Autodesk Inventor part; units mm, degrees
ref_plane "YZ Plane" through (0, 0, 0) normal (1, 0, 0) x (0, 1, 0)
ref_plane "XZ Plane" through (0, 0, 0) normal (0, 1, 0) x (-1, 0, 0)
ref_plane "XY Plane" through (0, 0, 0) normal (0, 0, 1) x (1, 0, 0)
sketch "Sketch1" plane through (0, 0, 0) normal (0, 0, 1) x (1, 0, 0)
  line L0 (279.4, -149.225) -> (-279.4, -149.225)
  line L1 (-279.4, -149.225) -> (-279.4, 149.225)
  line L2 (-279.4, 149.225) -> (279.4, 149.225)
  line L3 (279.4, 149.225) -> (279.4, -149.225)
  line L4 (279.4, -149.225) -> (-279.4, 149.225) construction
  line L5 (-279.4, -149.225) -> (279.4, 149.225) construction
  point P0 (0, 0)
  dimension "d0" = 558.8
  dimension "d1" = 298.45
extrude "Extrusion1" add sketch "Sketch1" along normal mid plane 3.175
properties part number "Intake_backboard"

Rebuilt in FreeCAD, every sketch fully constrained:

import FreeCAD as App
import Part
import Sketcher
Q = App.Units.Quantity

doc = App.newDocument("Part")
body = doc.addObject("PartDesign::Body", "Body")

sketch1 = body.newObject("Sketcher::SketchObject", "Sketch")
sketch1.AttachmentSupport = (doc.getObject("XY_Plane"), [""])
sketch1.MapMode = "FlatFace"
sketch1.addGeometry(Part.LineSegment(App.Vector(-279.4, -149.225, 0), App.Vector(279.4, -149.225, 0)), False)
sketch1.addGeometry(Part.LineSegment(App.Vector(279.4, -149.225, 0), App.Vector(279.4, 149.225, 0)), False)
sketch1.addGeometry(Part.LineSegment(App.Vector(279.4, 149.225, 0), App.Vector(-279.4, 149.225, 0)), False)
sketch1.addGeometry(Part.LineSegment(App.Vector(-279.4, 149.225, 0), App.Vector(-279.4, -149.225, 0)), False)
sketch1.addConstraint(Sketcher.Constraint("Coincident", 0, 2, 1, 1))
sketch1.addConstraint(Sketcher.Constraint("Coincident", 1, 2, 2, 1))
sketch1.addConstraint(Sketcher.Constraint("Coincident", 2, 2, 3, 1))
sketch1.addConstraint(Sketcher.Constraint("Coincident", 3, 2, 0, 1))
sketch1.addConstraint(Sketcher.Constraint("Horizontal", 0))
sketch1.addConstraint(Sketcher.Constraint("Vertical", 1))
sketch1.addConstraint(Sketcher.Constraint("Horizontal", 2))
sketch1.addConstraint(Sketcher.Constraint("Vertical", 3))
sketch1.addConstraint(Sketcher.Constraint("Symmetric", 0, 2, 2, 2, -1, 1))
sketch1.addConstraint(Sketcher.Constraint("DistanceX", 0, 1, 0, 2, Q("22 in")))
sketch1.addConstraint(Sketcher.Constraint("DistanceY", 1, 1, 1, 2, Q("11.75 in")))
pad1 = body.newObject("PartDesign::Pad", "Pad")
pad1.Profile = sketch1
pad1.Length = Q("0.125 in")
pad1.Midplane = True

doc.recompute()
